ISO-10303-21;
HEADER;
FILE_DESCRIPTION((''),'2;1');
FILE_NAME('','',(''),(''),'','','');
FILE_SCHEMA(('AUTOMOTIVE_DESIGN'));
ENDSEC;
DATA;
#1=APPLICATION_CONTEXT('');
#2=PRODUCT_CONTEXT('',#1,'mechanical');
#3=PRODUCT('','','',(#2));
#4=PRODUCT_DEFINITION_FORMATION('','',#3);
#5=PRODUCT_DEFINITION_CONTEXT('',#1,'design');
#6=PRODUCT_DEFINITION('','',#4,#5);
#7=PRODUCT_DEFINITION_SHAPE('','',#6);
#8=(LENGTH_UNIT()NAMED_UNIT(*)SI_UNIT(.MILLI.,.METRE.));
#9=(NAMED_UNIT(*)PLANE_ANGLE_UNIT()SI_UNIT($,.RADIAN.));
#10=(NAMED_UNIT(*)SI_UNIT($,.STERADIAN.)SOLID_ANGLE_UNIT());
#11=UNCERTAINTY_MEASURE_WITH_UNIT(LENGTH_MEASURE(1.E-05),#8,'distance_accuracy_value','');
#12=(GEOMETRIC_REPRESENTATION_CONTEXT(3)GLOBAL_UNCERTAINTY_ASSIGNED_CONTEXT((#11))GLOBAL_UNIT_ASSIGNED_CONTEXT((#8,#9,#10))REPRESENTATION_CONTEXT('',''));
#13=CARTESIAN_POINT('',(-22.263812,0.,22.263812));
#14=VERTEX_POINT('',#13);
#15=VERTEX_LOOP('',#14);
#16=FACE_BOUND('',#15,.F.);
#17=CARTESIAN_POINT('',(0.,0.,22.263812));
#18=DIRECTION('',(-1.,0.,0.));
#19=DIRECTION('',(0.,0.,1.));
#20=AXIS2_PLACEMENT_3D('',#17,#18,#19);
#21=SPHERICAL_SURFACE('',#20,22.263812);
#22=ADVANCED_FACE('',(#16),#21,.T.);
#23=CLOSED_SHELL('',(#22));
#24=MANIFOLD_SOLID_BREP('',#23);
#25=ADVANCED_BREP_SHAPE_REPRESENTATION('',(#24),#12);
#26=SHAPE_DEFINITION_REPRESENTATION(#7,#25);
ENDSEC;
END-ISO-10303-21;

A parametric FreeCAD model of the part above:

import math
import FreeCAD as App
import Part
import Sketcher
from FreeCAD import Vector

doc = App.newDocument("Part")
body = doc.addObject("PartDesign::Body", "Body")

sketch1 = body.newObject("Sketcher::SketchObject", "Sketch")
sketch1.AttachmentSupport = (doc.getObject("XZ_Plane"), [""])
sketch1.MapMode = "FlatFace"
sketch1.addGeometry([
    Part.LineSegment(Vector(-22, 22, 0), Vector(22, 22, 0)),
    Part.ArcOfCircle(Part.Circle(Vector(0, 22, 0), Vector(0, 0, 1), 22), math.radians(0), math.radians(180)),
], False)
sketch1.addGeometry(Part.LineSegment(Vector(-22, 22, 0), Vector(22, 22, 0)), True)
sketch1.addConstraint([
    Sketcher.Constraint("Coincident", 0, 1, 1, 2),
    Sketcher.Constraint("Coincident", 1, 1, 0, 2),
    Sketcher.Constraint("Horizontal", 0),
    Sketcher.Constraint("Horizontal", 2),
    Sketcher.Constraint("Coincident", 2, 1, 0, 1),
    Sketcher.Constraint("PointOnObject", 1, 3, -2),
    Sketcher.Constraint("Horizontal", 1, 3, 0, 1),
    Sketcher.Constraint("Equal", 0, 2),
    Sketcher.Constraint("Radius", 1, 22.263812),
    Sketcher.Constraint("DistanceY", -1, 1, 1, 3, 22.263812),
])
revolution = body.newObject("PartDesign::Revolution", "Revolution")
revolution.Profile = sketch1
revolution.ReferenceAxis = (sketch1, ["Axis0"])
revolution.Angle = 360

doc.recompute()
